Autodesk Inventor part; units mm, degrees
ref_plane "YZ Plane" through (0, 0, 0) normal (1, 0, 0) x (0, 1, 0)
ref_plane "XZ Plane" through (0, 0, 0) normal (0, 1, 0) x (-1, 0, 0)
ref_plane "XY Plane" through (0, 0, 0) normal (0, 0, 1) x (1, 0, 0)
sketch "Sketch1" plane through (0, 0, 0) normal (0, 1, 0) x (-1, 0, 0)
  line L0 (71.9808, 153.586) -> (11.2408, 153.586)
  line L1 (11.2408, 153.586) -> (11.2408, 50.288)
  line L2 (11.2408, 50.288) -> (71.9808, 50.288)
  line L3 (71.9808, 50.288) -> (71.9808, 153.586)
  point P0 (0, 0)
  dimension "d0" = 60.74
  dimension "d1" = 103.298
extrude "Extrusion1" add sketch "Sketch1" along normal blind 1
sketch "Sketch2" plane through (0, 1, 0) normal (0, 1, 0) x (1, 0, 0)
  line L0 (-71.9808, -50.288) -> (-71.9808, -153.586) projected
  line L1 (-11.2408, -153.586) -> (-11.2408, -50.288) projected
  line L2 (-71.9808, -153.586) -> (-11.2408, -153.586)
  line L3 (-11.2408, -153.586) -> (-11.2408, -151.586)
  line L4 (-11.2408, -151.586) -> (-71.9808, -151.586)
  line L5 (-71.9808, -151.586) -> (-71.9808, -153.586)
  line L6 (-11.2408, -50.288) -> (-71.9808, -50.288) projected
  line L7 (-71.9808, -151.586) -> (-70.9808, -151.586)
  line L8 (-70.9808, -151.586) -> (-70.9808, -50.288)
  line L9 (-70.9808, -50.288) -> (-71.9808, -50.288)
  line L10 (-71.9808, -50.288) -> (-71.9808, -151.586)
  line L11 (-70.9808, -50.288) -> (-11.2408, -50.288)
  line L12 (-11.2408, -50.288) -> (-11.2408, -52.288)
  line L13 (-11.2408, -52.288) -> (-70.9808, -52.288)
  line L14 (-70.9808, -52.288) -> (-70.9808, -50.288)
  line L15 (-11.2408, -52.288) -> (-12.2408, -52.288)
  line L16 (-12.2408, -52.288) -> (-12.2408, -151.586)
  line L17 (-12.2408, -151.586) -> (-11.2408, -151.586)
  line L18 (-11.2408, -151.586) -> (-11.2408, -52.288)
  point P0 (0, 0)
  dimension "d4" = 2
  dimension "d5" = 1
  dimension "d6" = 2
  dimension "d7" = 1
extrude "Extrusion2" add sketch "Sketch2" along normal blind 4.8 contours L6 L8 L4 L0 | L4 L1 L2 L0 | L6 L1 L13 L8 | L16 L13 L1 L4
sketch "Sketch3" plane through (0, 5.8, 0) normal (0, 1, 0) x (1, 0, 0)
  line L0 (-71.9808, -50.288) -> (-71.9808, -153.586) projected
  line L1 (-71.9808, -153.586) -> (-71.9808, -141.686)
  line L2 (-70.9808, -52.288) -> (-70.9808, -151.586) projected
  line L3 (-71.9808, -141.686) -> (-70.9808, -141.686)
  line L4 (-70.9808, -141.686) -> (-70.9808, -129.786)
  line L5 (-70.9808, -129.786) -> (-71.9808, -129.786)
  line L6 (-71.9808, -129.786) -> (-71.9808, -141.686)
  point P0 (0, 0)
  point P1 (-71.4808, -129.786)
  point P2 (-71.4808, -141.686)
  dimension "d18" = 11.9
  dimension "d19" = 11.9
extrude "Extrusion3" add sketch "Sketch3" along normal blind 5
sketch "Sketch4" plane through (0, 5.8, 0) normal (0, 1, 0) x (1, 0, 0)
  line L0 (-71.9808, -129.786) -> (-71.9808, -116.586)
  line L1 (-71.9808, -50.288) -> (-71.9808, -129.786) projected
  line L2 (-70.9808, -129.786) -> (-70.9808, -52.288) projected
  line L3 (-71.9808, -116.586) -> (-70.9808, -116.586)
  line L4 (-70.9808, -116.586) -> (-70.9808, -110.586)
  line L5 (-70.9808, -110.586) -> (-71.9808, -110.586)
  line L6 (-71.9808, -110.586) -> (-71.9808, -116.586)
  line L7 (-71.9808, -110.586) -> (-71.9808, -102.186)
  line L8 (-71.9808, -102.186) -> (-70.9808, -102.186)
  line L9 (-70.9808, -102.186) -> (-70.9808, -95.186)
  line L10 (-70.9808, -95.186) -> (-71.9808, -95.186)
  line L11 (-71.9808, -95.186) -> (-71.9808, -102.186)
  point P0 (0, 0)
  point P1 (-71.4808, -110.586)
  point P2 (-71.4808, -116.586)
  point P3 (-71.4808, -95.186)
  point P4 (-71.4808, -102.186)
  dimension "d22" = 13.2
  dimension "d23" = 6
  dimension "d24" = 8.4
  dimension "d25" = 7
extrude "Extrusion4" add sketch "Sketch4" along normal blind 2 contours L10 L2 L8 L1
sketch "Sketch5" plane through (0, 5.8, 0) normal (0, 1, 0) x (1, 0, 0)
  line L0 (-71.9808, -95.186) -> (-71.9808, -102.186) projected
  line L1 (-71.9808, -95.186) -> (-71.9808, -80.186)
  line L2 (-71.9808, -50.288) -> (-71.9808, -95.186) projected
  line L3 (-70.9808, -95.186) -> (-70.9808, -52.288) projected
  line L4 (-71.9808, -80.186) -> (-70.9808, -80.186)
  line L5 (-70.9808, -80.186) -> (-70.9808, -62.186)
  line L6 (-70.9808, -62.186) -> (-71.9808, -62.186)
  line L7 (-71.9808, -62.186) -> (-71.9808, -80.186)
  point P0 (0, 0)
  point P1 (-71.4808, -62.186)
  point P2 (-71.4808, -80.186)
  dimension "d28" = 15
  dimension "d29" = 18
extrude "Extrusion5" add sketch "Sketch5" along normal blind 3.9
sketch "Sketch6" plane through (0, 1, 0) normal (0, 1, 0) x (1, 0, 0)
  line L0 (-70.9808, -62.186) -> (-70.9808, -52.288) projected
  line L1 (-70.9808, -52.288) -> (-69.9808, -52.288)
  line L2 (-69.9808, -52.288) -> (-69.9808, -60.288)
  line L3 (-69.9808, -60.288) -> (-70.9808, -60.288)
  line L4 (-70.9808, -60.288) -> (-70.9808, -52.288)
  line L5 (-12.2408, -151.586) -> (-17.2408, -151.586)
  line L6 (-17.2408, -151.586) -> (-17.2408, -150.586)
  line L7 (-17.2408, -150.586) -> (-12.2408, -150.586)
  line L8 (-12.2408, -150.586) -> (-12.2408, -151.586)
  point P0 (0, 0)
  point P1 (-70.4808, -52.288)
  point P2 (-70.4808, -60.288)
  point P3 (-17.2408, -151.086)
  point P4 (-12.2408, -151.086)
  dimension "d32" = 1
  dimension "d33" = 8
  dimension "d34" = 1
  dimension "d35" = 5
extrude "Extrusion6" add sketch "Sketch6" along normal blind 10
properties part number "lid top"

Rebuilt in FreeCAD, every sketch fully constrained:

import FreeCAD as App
import Part
import Sketcher

V = App.Vector


def add_polygon(sketch, points):
    """Adds a closed chain of lines whose ends are joined by coincident constraints."""
    first, n = sketch.GeometryCount, len(points)
    for a, b in zip(points, points[1:] + points[:1]):
        sketch.addGeometry(Part.LineSegment(App.Vector(*a, 0), App.Vector(*b, 0)), False)
    for i in range(n):
        sketch.addConstraint(Sketcher.Constraint("Coincident", first + i, 2, first + (i + 1) % n, 1))

doc = App.newDocument("Part")
body = doc.addObject("PartDesign::Body", "Body")

# Sketch on XZ plane
sketch1 = body.newObject("Sketcher::SketchObject", "Sketch")
sketch1.AttachmentSupport = (doc.getObject("XZ_Plane"), [""])
sketch1.MapMode = "FlatFace"
add_polygon(sketch1, [(-72, 50), (-72, 154), (-11, 154), (-11, 50)])  # lines 0-3
sketch1.addConstraint(Sketcher.Constraint("Vertical", 0))
sketch1.addConstraint(Sketcher.Constraint("Horizontal", 1))
sketch1.addConstraint(Sketcher.Constraint("Vertical", 2))
sketch1.addConstraint(Sketcher.Constraint("Horizontal", 3))
sketch1.addConstraint(Sketcher.Constraint("DistanceX", 1, 1, 1, 2, 60.74))
sketch1.addConstraint(Sketcher.Constraint("DistanceY", 0, 1, 0, 2, 103.298))
sketch1.addConstraint(Sketcher.Constraint("DistanceY", -1, 1, 0, 2, 153.586))
sketch1.addConstraint(Sketcher.Constraint("DistanceX", 0, 2, -1, 1, 71.9808))
pad1 = body.newObject("PartDesign::Pad", "Pad")
pad1.Profile = sketch1
pad1.Length = 1
pad1.Reversed = True

# Sketch on XZ plane
sketch2 = body.newObject("Sketcher::SketchObject", "Sketch001")
sketch2.AttachmentSupport = (doc.getObject("XZ_Plane"), [""])
sketch2.MapMode = "FlatFace"
sketch2.AttachmentOffset = App.Placement(V(0, 0, -1), App.Rotation())
add_polygon(sketch2, [(-72, 50), (-72, 154), (-11, 154), (-11, 50)])  # lines 0-3
add_polygon(sketch2, [(-71, 152), (-71, 52), (-12, 52), (-12, 152)])  # lines 4-7
sketch2.addConstraint(Sketcher.Constraint("Vertical", 0))
sketch2.addConstraint(Sketcher.Constraint("Horizontal", 1))
sketch2.addConstraint(Sketcher.Constraint("Vertical", 2))
sketch2.addConstraint(Sketcher.Constraint("Horizontal", 3))
sketch2.addConstraint(Sketcher.Constraint("Vertical", 4))
sketch2.addConstraint(Sketcher.Constraint("Horizontal", 5))
sketch2.addConstraint(Sketcher.Constraint("Vertical", 6))
sketch2.addConstraint(Sketcher.Constraint("Horizontal", 7))
sketch2.addConstraint(Sketcher.Constraint("DistanceX", 3, 2, 4, 2, 1.0))
sketch2.addConstraint(Sketcher.Constraint("DistanceY", 3, 2, 4, 2, 2.0))
sketch2.addConstraint(Sketcher.Constraint("DistanceX", 5, 2, 2, 2, 1.0))
sketch2.addConstraint(Sketcher.Constraint("DistanceY", 6, 2, 1, 2, 2.0))
sketch2.addConstraint(Sketcher.Constraint("DistanceX", 1, 1, 1, 2, 60.74))
sketch2.addConstraint(Sketcher.Constraint("DistanceY", 0, 1, 0, 2, 103.298))
sketch2.addConstraint(Sketcher.Constraint("DistanceY", -1, 1, 0, 2, 153.586))
sketch2.addConstraint(Sketcher.Constraint("DistanceX", 0, 2, -1, 1, 71.9808))
pad2 = body.newObject("PartDesign::Pad", "Pad001")
pad2.Profile = sketch2
pad2.Length = 4.8
pad2.Reversed = True

# Sketch on XZ plane
sketch3 = body.newObject("Sketcher::SketchObject", "Sketch002")
sketch3.AttachmentSupport = (doc.getObject("XZ_Plane"), [""])
sketch3.MapMode = "FlatFace"
sketch3.AttachmentOffset = App.Placement(V(0, 0, -5.8), App.Rotation())
add_polygon(sketch3, [(-71, 129.8), (-72, 129.8), (-72, 141.7), (-71, 141.7)])  # lines 0-3
sketch3.addConstraint(Sketcher.Constraint("Horizontal", 0))
sketch3.addConstraint(Sketcher.Constraint("Vertical", 1))
sketch3.addConstraint(Sketcher.Constraint("Horizontal", 2))
sketch3.addConstraint(Sketcher.Constraint("Vertical", 3))
sketch3.addConstraint(Sketcher.Constraint("DistanceY", 1, 1, 1, 2, 11.9))
sketch3.addConstraint(Sketcher.Constraint("DistanceX", 0, 2, 0, 1, 1.0))
sketch3.addConstraint(Sketcher.Constraint("DistanceY", -1, 1, 0, 2, 129.786))
sketch3.addConstraint(Sketcher.Constraint("DistanceX", 0, 2, -1, 1, 71.9808))
pad3 = body.newObject("PartDesign::Pad", "Pad002")
pad3.Profile = sketch3
pad3.Length = 5
pad3.Reversed = True

# Sketch on XZ plane
sketch4 = body.newObject("Sketcher::SketchObject", "Sketch003")
sketch4.AttachmentSupport = (doc.getObject("XZ_Plane"), [""])
sketch4.MapMode = "FlatFace"
sketch4.AttachmentOffset = App.Placement(V(0, 0, -5.8), App.Rotation())
add_polygon(sketch4, [(-71, 95.2), (-72, 95.2), (-72, 102.2), (-71, 102.2)])  # lines 0-3
sketch4.addConstraint(Sketcher.Constraint("Horizontal", 0))
sketch4.addConstraint(Sketcher.Constraint("Vertical", 1))
sketch4.addConstraint(Sketcher.Constraint("Horizontal", 2))
sketch4.addConstraint(Sketcher.Constraint("Vertical", 3))
sketch4.addConstraint(Sketcher.Constraint("DistanceY", 1, 1, 1, 2, 7.0))
sketch4.addConstraint(Sketcher.Constraint("DistanceX", 0, 2, 0, 1, 1.0))
sketch4.addConstraint(Sketcher.Constraint("DistanceY", -1, 1, 0, 2, 95.186))
sketch4.addConstraint(Sketcher.Constraint("DistanceX", 0, 2, -1, 1, 71.9808))
pad4 = body.newObject("PartDesign::Pad", "Pad003")
pad4.Profile = sketch4
pad4.Length = 2
pad4.Reversed = True

# Sketch on XZ plane
sketch5 = body.newObject("Sketcher::SketchObject", "Sketch004")
sketch5.AttachmentSupport = (doc.getObject("XZ_Plane"), [""])
sketch5.MapMode = "FlatFace"
sketch5.AttachmentOffset = App.Placement(V(0, 0, -5.8), App.Rotation())
add_polygon(sketch5, [(-71, 62.2), (-72, 62.2), (-72, 80.2), (-71, 80.2)])  # lines 0-3
sketch5.addConstraint(Sketcher.Constraint("Horizontal", 0))
sketch5.addConstraint(Sketcher.Constraint("Vertical", 1))
sketch5.addConstraint(Sketcher.Constraint("Horizontal", 2))
sketch5.addConstraint(Sketcher.Constraint("Vertical", 3))
sketch5.addConstraint(Sketcher.Constraint("DistanceY", 1, 1, 1, 2, 18.0))
sketch5.addConstraint(Sketcher.Constraint("DistanceX", 0, 2, 0, 1, 1.0))
sketch5.addConstraint(Sketcher.Constraint("DistanceY", -1, 1, 0, 2, 62.186))
sketch5.addConstraint(Sketcher.Constraint("DistanceX", 0, 2, -1, 1, 71.9808))
pad5 = body.newObject("PartDesign::Pad", "Pad004")
pad5.Profile = sketch5
pad5.Length = 3.9
pad5.Reversed = True

# Sketch on XZ plane
sketch6 = body.newObject("Sketcher::SketchObject", "Sketch005")
sketch6.AttachmentSupport = (doc.getObject("XZ_Plane"), [""])
sketch6.MapMode = "FlatFace"
sketch6.AttachmentOffset = App.Placement(V(0, 0, -1), App.Rotation())
add_polygon(sketch6, [(-71, 52.3), (-71, 60.3), (-70, 60.3), (-70, 52.3)])  # lines 0-3
add_polygon(sketch6, [(-17.2, 151.6), (-12.2, 151.6), (-12.2, 150.6), (-17.2, 150.6)])  # lines 4-7
sketch6.addConstraint(Sketcher.Constraint("Vertical", 0))
sketch6.addConstraint(Sketcher.Constraint("Horizontal", 1))
sketch6.addConstraint(Sketcher.Constraint("Vertical", 2))
sketch6.addConstraint(Sketcher.Constraint("Horizontal", 3))
sketch6.addConstraint(Sketcher.Constraint("Horizontal", 4))
sketch6.addConstraint(Sketcher.Constraint("Vertical", 5))
sketch6.addConstraint(Sketcher.Constraint("Horizontal", 6))
sketch6.addConstraint(Sketcher.Constraint("Vertical", 7))
sketch6.addConstraint(Sketcher.Constraint("Equal", 3, 5))
sketch6.addConstraint(Sketcher.Constraint("DistanceX", 1, 1, 1, 2, 1.0))
sketch6.addConstraint(Sketcher.Constraint("DistanceX", 4, 1, 4, 2, 5.0))
sketch6.addConstraint(Sketcher.Constraint("DistanceY", 0, 1, 0, 2, 8.0))
sketch6.addConstraint(Sketcher.Constraint("DistanceX", 1, 2, 4, 2, 57.74))
sketch6.addConstraint(Sketcher.Constraint("DistanceY", -1, 1, 0, 2, 60.288))
sketch6.addConstraint(Sketcher.Constraint("DistanceY", -1, 1, 4, 2, 151.586))
sketch6.addConstraint(Sketcher.Constraint("DistanceX", 0, 2, -1, 1, 70.9808))
pad6 = body.newObject("PartDesign::Pad", "Pad005")
pad6.Profile = sketch6
pad6.Length = 10
pad6.Reversed = True

doc.recompute()
